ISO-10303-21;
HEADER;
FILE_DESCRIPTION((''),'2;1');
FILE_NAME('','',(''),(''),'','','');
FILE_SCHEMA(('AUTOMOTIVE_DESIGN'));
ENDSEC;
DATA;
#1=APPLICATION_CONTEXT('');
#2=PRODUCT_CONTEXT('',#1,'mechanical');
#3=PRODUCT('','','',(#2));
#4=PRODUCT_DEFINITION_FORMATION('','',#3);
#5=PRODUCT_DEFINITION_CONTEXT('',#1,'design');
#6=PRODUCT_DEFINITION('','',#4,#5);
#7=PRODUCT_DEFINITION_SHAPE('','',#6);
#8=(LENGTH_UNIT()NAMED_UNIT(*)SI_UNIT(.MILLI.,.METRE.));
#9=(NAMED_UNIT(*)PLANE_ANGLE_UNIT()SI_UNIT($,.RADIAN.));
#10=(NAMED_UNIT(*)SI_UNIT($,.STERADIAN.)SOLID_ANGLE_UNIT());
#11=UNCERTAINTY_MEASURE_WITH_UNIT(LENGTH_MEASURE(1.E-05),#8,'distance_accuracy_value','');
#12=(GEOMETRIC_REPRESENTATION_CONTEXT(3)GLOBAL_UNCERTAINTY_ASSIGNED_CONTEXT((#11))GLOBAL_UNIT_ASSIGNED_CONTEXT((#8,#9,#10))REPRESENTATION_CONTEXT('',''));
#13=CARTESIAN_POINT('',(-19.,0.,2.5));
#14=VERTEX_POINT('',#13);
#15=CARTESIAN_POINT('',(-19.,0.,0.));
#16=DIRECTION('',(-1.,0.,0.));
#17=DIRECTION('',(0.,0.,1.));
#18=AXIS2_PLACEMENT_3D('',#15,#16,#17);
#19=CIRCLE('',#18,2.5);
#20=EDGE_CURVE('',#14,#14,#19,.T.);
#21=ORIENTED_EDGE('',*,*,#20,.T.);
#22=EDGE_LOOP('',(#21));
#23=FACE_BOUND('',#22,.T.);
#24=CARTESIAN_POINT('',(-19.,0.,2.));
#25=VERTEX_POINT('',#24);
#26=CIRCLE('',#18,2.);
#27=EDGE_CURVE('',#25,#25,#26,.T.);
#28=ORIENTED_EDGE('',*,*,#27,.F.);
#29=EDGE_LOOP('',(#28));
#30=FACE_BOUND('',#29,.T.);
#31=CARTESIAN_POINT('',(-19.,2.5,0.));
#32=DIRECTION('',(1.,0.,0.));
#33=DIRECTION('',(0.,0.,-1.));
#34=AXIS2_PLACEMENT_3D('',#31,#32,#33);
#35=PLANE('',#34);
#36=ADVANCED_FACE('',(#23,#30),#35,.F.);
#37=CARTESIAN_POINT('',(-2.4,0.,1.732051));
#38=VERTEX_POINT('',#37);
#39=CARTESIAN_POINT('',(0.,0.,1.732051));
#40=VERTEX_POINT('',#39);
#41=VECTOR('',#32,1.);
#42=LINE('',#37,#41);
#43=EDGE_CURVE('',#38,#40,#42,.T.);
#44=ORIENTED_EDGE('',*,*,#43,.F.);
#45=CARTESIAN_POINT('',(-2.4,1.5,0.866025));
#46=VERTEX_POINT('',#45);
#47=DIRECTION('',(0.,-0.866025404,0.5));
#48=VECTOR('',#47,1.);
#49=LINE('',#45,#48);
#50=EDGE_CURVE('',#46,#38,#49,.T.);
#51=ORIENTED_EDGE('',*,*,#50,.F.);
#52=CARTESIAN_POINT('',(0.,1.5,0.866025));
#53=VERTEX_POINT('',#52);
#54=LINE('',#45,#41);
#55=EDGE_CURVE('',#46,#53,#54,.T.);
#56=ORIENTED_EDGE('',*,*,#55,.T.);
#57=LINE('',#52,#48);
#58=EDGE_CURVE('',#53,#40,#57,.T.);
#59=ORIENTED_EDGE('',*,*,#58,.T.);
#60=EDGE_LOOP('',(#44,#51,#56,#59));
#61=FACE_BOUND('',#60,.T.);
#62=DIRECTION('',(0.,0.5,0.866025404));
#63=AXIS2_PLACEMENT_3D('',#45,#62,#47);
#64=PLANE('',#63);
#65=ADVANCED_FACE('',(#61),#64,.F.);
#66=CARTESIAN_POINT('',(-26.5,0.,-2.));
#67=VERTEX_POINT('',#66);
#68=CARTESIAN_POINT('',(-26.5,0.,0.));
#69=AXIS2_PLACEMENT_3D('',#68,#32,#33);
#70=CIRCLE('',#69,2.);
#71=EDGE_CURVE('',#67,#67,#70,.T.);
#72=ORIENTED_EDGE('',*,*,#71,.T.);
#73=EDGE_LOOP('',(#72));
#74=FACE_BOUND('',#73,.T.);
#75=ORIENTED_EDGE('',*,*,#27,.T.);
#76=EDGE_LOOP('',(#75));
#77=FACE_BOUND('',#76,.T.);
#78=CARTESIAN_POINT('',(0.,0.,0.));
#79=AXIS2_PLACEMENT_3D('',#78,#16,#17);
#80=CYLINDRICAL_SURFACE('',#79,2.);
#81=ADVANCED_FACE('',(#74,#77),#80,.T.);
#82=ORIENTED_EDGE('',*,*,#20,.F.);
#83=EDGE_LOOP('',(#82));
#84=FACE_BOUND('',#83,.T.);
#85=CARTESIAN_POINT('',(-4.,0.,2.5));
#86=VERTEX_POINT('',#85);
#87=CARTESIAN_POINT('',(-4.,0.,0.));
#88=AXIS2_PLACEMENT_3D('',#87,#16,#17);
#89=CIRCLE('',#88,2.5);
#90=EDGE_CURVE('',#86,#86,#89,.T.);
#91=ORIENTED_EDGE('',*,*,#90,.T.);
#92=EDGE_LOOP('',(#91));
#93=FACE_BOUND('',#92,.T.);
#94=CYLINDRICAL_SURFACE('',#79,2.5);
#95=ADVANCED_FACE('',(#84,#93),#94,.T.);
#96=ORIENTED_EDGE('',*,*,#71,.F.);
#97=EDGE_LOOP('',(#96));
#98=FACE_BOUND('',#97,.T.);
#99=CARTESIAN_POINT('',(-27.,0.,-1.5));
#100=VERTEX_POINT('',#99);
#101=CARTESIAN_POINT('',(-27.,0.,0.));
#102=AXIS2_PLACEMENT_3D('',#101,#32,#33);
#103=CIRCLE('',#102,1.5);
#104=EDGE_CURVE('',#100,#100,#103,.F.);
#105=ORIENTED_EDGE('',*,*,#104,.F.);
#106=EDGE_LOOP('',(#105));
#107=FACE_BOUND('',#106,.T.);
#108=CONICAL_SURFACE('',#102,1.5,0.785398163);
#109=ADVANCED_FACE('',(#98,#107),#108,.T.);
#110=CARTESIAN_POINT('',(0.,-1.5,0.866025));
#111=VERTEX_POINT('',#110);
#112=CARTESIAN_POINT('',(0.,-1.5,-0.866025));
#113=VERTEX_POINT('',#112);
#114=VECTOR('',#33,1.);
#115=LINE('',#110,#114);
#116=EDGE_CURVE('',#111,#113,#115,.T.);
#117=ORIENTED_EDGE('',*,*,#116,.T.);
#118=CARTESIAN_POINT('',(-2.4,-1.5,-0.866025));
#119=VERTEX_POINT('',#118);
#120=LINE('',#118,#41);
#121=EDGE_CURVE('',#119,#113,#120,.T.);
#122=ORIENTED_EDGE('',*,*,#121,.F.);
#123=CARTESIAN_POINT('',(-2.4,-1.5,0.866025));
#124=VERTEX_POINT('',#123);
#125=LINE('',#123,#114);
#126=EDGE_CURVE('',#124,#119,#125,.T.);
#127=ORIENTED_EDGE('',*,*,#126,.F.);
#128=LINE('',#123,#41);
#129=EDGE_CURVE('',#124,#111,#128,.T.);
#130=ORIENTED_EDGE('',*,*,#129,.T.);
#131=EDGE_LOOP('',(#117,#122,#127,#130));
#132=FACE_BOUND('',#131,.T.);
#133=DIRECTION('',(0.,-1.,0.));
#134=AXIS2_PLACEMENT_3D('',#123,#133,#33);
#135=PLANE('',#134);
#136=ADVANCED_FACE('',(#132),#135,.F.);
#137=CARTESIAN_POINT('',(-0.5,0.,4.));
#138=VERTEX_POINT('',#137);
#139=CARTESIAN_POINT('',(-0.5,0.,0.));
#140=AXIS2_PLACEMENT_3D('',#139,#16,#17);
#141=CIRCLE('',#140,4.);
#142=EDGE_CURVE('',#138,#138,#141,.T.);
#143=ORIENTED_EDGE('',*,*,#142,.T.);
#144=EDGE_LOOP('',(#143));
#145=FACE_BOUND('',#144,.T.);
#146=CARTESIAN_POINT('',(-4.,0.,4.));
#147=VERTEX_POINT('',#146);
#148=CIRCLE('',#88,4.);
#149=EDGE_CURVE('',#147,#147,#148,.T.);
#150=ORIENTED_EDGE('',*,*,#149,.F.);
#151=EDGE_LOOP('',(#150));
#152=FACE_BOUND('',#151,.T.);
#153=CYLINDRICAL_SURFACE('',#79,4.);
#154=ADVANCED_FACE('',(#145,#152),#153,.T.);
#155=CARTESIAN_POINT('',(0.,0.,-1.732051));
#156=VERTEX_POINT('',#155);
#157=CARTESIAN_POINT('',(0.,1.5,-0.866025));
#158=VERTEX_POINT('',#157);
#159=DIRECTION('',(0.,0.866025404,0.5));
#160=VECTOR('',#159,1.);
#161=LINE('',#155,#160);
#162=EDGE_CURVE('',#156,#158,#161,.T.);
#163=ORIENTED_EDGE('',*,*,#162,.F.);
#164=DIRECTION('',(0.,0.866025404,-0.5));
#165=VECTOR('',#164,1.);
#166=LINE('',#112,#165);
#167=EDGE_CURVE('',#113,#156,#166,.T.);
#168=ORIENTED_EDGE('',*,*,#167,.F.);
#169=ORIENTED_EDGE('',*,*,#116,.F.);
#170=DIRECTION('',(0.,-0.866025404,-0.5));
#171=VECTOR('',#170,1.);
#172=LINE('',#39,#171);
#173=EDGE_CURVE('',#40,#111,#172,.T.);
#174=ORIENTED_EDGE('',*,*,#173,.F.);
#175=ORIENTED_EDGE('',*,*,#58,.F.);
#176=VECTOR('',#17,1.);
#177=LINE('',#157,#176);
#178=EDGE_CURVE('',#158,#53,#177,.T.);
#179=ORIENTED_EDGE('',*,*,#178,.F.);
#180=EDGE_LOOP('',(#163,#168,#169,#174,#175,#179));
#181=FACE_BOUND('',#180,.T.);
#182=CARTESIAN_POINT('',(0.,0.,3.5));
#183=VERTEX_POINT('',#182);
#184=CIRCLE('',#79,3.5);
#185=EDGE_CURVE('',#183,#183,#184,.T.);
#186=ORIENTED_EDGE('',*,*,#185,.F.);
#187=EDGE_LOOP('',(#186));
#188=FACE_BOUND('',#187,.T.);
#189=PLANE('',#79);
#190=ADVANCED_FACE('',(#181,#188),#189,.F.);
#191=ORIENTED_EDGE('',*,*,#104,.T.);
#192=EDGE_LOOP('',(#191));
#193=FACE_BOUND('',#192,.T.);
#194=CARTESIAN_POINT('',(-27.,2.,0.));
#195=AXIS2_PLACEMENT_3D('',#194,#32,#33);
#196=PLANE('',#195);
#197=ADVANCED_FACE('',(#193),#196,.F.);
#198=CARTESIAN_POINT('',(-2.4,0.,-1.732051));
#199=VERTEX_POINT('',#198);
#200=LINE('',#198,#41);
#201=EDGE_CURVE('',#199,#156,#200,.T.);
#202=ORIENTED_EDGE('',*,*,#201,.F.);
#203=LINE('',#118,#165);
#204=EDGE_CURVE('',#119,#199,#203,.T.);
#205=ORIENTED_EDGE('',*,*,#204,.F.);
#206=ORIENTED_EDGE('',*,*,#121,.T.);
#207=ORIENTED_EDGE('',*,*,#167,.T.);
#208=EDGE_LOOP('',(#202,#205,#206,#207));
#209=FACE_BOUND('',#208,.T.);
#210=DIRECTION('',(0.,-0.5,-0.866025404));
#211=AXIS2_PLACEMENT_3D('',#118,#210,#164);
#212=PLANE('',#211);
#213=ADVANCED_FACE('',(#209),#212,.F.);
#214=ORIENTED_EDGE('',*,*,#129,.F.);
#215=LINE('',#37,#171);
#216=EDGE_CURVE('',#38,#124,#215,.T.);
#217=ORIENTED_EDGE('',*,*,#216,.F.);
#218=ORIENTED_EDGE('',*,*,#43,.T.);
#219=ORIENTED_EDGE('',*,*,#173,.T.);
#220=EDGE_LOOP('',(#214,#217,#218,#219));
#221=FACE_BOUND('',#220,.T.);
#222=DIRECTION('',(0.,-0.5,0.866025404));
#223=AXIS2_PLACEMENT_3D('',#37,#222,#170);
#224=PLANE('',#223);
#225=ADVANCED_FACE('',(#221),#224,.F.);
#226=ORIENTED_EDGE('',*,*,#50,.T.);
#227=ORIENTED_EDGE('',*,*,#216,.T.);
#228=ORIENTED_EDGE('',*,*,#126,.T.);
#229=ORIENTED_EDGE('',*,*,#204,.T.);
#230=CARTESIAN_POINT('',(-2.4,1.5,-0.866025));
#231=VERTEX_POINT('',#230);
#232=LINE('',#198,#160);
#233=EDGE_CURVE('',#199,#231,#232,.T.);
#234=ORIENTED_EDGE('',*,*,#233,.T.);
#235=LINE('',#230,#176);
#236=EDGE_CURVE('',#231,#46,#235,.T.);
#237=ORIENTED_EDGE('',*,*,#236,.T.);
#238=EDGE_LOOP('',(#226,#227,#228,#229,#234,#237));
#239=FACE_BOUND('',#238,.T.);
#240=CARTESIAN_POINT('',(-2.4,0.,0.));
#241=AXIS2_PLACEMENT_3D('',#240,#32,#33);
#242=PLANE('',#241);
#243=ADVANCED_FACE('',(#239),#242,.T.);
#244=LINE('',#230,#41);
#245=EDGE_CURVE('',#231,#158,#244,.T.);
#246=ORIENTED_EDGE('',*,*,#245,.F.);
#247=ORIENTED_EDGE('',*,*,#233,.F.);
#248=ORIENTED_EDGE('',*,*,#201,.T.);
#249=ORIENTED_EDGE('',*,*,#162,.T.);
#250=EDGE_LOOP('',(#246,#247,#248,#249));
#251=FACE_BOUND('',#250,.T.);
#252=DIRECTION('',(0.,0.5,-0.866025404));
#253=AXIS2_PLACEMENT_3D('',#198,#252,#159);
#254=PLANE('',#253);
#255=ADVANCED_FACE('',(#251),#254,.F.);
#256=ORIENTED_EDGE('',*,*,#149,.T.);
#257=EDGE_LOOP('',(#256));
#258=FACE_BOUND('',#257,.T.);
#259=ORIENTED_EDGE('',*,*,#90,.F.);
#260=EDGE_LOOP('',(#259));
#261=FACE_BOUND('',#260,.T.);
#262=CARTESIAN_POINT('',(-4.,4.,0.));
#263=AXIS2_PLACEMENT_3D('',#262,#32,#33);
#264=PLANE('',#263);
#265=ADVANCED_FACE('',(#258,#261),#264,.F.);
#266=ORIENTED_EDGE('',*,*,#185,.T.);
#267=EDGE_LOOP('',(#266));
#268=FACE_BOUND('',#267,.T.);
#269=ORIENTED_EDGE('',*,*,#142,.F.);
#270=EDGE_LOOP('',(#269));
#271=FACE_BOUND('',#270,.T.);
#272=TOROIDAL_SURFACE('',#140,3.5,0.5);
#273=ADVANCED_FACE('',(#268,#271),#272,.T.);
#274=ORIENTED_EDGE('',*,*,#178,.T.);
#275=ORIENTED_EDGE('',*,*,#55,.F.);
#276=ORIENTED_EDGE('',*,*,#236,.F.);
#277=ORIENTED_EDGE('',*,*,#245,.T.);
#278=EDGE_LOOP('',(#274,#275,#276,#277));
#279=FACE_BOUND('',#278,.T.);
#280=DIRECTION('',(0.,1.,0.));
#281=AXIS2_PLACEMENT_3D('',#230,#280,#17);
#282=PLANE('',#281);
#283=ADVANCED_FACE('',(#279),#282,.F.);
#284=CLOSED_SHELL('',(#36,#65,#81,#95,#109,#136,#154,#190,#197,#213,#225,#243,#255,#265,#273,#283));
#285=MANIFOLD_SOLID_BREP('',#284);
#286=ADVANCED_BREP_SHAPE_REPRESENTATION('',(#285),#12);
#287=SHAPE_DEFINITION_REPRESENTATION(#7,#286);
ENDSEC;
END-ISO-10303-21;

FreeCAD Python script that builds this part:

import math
import FreeCAD as App
import Part
import Sketcher
Q = App.Units.Quantity


def edges_at(feature, points):
    """Names of the edges that pass closest to the given points."""
    edges = feature.Shape.Edges
    near = lambda p: min(range(len(edges)), key=lambda i: edges[i].distToShape(Part.Vertex(*p))[0])
    return sorted({f"Edge{near(p) + 1}" for p in points})


def add_polygon(sketch, points):
    """Adds a closed chain of lines whose ends are joined by coincident constraints."""
    first, n = sketch.GeometryCount, len(points)
    for a, b in zip(points, points[1:] + points[:1]):
        sketch.addGeometry(Part.LineSegment(App.Vector(*a, 0), App.Vector(*b, 0)), False)
    for i in range(n):
        sketch.addConstraint(Sketcher.Constraint("Coincident", first + i, 2, first + (i + 1) % n, 1))

doc = App.newDocument("Part")
body = doc.addObject("PartDesign::Body", "Body")

sketch1 = body.newObject("Sketcher::SketchObject", "Sketch")
sketch1.AttachmentSupport = (doc.getObject("XY_Plane"), [""])
sketch1.MapMode = "FlatFace"
sketch1.addGeometry(Part.LineSegment(App.Vector(0, 0, 0), App.Vector(0, 3.5, 0)), False)
sketch1.addGeometry(Part.ArcOfCircle(Part.Circle(App.Vector(-0.5, 3.5, 0), App.Vector(0, 0, 1), 0.5), math.radians(0), math.radians(90)), False)
sketch1.addGeometry(Part.LineSegment(App.Vector(-0.5, 4, 0), App.Vector(-4, 4, 0)), False)
sketch1.addGeometry(Part.LineSegment(App.Vector(-4, 4, 0), App.Vector(-4, 2.5, 0)), False)
sketch1.addGeometry(Part.LineSegment(App.Vector(-4, 2.5, 0), App.Vector(-19, 2.5, 0)), False)
sketch1.addGeometry(Part.LineSegment(App.Vector(-19, 2.5, 0), App.Vector(-19, 2, 0)), False)
sketch1.addGeometry(Part.LineSegment(App.Vector(-19, 2, 0), App.Vector(-27, 2, 0)), False)
sketch1.addGeometry(Part.LineSegment(App.Vector(-27, 2, 0), App.Vector(-27, 0, 0)), False)
sketch1.addGeometry(Part.LineSegment(App.Vector(-27, 0, 0), App.Vector(0, 0, 0)), False)
sketch1.addConstraint(Sketcher.Constraint("Tangent", 0, 2, 1, 1))
sketch1.addConstraint(Sketcher.Constraint("Tangent", 1, 2, 2, 1))
sketch1.addConstraint(Sketcher.Constraint("Coincident", 2, 2, 3, 1))
sketch1.addConstraint(Sketcher.Constraint("Coincident", 3, 2, 4, 1))
sketch1.addConstraint(Sketcher.Constraint("Coincident", 4, 2, 5, 1))
sketch1.addConstraint(Sketcher.Constraint("Coincident", 5, 2, 6, 1))
sketch1.addConstraint(Sketcher.Constraint("Coincident", 6, 2, 7, 1))
sketch1.addConstraint(Sketcher.Constraint("Coincident", 7, 2, 8, 1))
sketch1.addConstraint(Sketcher.Constraint("Coincident", 8, 2, 0, 1))
sketch1.addConstraint(Sketcher.Constraint("Vertical", 0))
sketch1.addConstraint(Sketcher.Constraint("Horizontal", 2))
sketch1.addConstraint(Sketcher.Constraint("Vertical", 3))
sketch1.addConstraint(Sketcher.Constraint("Horizontal", 4))
sketch1.addConstraint(Sketcher.Constraint("Vertical", 5))
sketch1.addConstraint(Sketcher.Constraint("Horizontal", 6))
sketch1.addConstraint(Sketcher.Constraint("Vertical", 7))
sketch1.addConstraint(Sketcher.Constraint("Horizontal", 8))
sketch1.addConstraint(Sketcher.Constraint("Coincident", 8, 2, -1, 1))
sketch1.addConstraint(Sketcher.Constraint("Equal", 2, 0))
sketch1.addConstraint(Sketcher.Constraint("Radius", 1, Q("0.5 mm")))
sketch1.addConstraint(Sketcher.Constraint("DistanceX", 4, 2, 4, 1, Q("15 mm")))
sketch1.addConstraint(Sketcher.Constraint("DistanceX", 6, 2, 6, 1, Q("8 mm")))
sketch1.addConstraint(Sketcher.Constraint("DistanceX", 8, 1, 8, 2, Q("27 mm")))
sketch1.addConstraint(Sketcher.Constraint("DistanceY", 7, 2, 7, 1, Q("2 mm")))
sketch1.addConstraint(Sketcher.Constraint("DistanceY", 3, 2, 3, 1, Q("1.5 mm")))
revolution = body.newObject("PartDesign::Revolution", "Revolution")
revolution.Profile = sketch1
revolution.ReferenceAxis = (sketch1, ["H_Axis"])
revolution.Angle = 360
doc.recompute()

chamfer = body.newObject("PartDesign::Chamfer", "Chamfer")
chamfer.Base = (revolution, edges_at(revolution, [(-27, -2, 0)]))
chamfer.Size = 0.5

sketch2 = body.newObject("Sketcher::SketchObject", "Sketch001")
sketch2.AttachmentSupport = (doc.getObject("YZ_Plane"), [""])
sketch2.MapMode = "FlatFace"
add_polygon(sketch2, [(0, -1.7), (1.5, -0.9), (1.5, 0.9), (0, 1.7), (-1.5, 0.9), (-1.5, -0.9)])
sketch2.addConstraint(Sketcher.Constraint("Vertical", 1))
sketch2.addConstraint(Sketcher.Constraint("Vertical", 4))
sketch2.addConstraint(Sketcher.Constraint("Symmetric", 0, 2, 3, 2, -1, 1))
sketch2.addConstraint(Sketcher.Constraint("Symmetric", 2, 2, 5, 2, -1, 1))
sketch2.addConstraint(Sketcher.Constraint("PointOnObject", 2, 2, -2))
sketch2.addConstraint(Sketcher.Constraint("Parallel", 2, 5))
sketch2.addConstraint(Sketcher.Constraint("Horizontal", 1, 2, 3, 2))
sketch2.addConstraint(Sketcher.Constraint("Angle", 0, Q("30 deg")))
sketch2.addConstraint(Sketcher.Constraint("DistanceX", 3, 2, 1, 2, Q("3 mm")))
sketch2.addConstraint(Sketcher.Constraint("DistanceY", 1, 1, 1, 2, Q("1.732051 mm")))
pocket1 = body.newObject("PartDesign::Pocket", "Pocket")
pocket1.Profile = sketch2
pocket1.Length = 2.4

doc.recompute()
